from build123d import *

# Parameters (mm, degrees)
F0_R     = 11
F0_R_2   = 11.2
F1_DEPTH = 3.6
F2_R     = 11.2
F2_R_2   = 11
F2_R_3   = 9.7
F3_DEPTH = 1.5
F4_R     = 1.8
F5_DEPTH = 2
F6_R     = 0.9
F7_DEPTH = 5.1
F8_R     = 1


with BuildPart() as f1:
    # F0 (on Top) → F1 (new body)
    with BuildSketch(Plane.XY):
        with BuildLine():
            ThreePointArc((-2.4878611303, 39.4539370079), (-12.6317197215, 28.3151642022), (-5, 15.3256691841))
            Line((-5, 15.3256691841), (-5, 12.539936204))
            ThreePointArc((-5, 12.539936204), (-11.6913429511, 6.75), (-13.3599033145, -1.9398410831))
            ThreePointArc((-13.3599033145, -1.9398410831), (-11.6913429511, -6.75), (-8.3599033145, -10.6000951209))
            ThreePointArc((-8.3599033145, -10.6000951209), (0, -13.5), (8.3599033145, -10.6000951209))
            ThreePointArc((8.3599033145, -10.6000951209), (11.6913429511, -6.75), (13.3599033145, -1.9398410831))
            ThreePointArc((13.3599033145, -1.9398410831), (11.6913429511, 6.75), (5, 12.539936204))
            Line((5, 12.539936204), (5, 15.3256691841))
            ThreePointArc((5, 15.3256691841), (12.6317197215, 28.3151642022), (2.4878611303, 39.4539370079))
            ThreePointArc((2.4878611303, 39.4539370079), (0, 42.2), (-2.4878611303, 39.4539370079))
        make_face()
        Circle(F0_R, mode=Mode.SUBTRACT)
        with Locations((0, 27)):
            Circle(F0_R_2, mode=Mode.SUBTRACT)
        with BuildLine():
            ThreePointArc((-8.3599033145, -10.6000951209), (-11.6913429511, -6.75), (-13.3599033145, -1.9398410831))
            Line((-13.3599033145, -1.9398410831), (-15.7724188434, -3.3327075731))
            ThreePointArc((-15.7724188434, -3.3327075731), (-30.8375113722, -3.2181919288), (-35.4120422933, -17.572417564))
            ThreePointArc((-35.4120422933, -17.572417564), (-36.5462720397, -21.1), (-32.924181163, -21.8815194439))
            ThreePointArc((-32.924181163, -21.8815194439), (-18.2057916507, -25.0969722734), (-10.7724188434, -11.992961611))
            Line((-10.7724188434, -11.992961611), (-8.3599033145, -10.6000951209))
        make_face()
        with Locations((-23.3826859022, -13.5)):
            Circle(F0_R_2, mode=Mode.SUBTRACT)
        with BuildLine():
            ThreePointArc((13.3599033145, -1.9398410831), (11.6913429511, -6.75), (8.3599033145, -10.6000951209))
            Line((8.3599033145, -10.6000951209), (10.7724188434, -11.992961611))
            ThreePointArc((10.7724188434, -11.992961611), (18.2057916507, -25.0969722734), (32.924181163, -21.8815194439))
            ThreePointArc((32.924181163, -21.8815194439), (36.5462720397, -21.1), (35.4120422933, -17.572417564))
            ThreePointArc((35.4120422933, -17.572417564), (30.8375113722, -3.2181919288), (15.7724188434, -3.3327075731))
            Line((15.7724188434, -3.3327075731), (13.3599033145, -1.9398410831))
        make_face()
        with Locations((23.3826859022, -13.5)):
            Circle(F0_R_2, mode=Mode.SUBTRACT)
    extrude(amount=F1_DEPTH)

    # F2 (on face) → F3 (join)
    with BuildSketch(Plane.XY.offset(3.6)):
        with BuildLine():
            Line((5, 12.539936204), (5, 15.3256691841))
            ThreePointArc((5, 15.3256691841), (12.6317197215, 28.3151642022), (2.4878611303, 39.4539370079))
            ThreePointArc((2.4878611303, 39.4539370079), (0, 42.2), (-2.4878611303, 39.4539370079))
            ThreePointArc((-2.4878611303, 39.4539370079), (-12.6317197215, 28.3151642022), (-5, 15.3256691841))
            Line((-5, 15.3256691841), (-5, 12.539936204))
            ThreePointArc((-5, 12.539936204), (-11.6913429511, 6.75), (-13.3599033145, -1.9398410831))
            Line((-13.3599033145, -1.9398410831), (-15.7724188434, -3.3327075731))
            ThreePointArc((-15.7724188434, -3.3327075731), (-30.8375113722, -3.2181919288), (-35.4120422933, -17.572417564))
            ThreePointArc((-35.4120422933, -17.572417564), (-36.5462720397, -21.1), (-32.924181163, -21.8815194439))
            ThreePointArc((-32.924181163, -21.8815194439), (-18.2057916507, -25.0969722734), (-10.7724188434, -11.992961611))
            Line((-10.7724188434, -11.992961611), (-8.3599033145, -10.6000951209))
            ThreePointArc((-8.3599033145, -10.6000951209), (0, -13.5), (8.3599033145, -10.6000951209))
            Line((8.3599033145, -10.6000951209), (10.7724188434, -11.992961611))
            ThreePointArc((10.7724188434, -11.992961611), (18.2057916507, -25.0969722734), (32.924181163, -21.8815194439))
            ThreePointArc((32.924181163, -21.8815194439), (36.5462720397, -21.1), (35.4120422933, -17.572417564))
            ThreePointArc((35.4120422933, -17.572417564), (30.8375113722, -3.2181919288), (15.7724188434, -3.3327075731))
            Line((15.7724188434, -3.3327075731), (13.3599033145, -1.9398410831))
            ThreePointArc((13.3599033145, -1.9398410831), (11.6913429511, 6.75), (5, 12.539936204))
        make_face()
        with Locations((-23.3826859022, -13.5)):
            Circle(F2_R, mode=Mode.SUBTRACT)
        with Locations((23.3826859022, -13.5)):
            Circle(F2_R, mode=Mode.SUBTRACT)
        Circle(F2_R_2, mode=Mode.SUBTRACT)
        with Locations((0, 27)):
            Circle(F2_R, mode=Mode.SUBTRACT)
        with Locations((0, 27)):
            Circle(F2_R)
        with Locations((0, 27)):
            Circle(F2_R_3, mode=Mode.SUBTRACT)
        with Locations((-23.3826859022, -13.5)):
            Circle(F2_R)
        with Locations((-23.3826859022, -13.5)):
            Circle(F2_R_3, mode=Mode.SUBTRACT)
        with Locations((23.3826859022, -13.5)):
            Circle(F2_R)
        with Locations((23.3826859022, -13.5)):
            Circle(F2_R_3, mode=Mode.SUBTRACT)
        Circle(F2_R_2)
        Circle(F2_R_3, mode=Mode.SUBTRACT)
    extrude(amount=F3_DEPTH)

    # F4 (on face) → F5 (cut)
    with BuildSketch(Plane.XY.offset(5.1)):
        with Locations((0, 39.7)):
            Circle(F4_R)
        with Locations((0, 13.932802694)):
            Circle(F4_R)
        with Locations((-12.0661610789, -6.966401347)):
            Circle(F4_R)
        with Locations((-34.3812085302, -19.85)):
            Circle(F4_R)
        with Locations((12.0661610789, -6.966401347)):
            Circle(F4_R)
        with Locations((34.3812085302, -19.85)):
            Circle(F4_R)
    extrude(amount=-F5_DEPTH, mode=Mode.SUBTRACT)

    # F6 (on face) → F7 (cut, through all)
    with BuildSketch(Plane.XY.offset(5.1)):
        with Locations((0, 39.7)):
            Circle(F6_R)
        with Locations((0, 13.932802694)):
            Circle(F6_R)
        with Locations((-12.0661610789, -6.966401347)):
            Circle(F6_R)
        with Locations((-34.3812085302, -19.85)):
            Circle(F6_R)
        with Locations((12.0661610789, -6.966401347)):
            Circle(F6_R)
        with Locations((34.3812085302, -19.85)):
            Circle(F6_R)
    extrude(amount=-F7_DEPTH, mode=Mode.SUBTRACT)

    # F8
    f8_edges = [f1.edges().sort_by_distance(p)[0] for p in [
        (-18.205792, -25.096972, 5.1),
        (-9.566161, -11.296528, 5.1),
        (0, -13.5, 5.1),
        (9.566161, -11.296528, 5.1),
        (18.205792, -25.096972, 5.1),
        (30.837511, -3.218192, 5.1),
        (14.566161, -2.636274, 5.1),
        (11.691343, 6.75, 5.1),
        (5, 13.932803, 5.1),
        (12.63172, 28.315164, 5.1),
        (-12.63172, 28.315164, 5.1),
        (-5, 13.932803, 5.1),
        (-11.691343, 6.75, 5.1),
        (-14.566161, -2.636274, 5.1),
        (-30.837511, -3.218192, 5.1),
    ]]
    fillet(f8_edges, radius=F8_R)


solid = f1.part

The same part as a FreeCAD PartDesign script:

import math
import FreeCAD as App
import Part
import Sketcher

V = App.Vector
Q = App.Units.Quantity


def edges_at(feature, points):
    """Names of the edges that pass closest to the given points."""
    edges = feature.Shape.Edges
    near = lambda p: min(range(len(edges)), key=lambda i: edges[i].distToShape(Part.Vertex(*p))[0])
    return sorted({f"Edge{near(p) + 1}" for p in points})

doc = App.newDocument("Part")
body = doc.addObject("PartDesign::Body", "Body")

sketch1 = body.newObject("Sketcher::SketchObject", "Sketch")
sketch1.AttachmentSupport = (doc.getObject("XY_Plane"), [""])
sketch1.MapMode = "FlatFace"
sketch1.addGeometry(Part.ArcOfCircle(Part.Circle(V(0, 27, 0), V(0, 0, 1), 12.7), math.radians(101.296987), math.radians(246.81503)), False)
sketch1.addGeometry(Part.LineSegment(V(-5, 15.325669, 0), V(-5, 12.539936, 0)), False)
sketch1.addGeometry(Part.ArcOfCircle(Part.Circle(V(0, 0, 0), V(0, 0, 1), 13.5), math.radians(111.738461), math.radians(188.261539)), False)
sketch1.addGeometry(Part.LineSegment(V(-13.359903, -1.939841, 0), V(-15.772419, -3.332708, 0)), False)
sketch1.addGeometry(Part.ArcOfCircle(Part.Circle(V(-23.382686, -13.5, 0), V(0, 0, 1), 12.7), math.radians(53.18497), math.radians(198.703013)), False)
sketch1.addGeometry(Part.ArcOfCircle(Part.Circle(V(-34.381209, -19.85, 0), V(0, 0, 1), 2.5), math.radians(114.351506), math.radians(305.648494)), False)
sketch1.addGeometry(Part.ArcOfCircle(Part.Circle(V(-23.382686, -13.5, 0), V(0, 0, 1), 12.7), math.radians(-138.703013), math.radians(6.81503)), False)
sketch1.addGeometry(Part.LineSegment(V(-10.772419, -11.992962, 0), V(-8.359903, -10.600095, 0)), False)
sketch1.addGeometry(Part.ArcOfCircle(Part.Circle(V(0, 0, 0), V(0, 0, 1), 13.5), math.radians(-128.261539), math.radians(-51.738461)), False)
sketch1.addGeometry(Part.LineSegment(V(8.359903, -10.600095, 0), V(10.772419, -11.992962, 0)), False)
sketch1.addGeometry(Part.ArcOfCircle(Part.Circle(V(23.382686, -13.5, 0), V(0, 0, 1), 12.7), math.radians(173.18497), math.radians(318.703013)), False)
sketch1.addGeometry(Part.ArcOfCircle(Part.Circle(V(34.381209, -19.85, 0), V(0, 0, 1), 2.5), math.radians(-125.648494), math.radians(65.648494)), False)
sketch1.addGeometry(Part.ArcOfCircle(Part.Circle(V(23.382686, -13.5, 0), V(0, 0, 1), 12.7), math.radians(-18.703013), math.radians(126.81503)), False)
sketch1.addGeometry(Part.LineSegment(V(15.772419, -3.332708, 0), V(13.359903, -1.939841, 0)), False)
sketch1.addGeometry(Part.ArcOfCircle(Part.Circle(V(0, 0, 0), V(0, 0, 1), 13.5), math.radians(-8.261539), math.radians(68.261539)), False)
sketch1.addGeometry(Part.LineSegment(V(5, 12.539936, 0), V(5, 15.325669, 0)), False)
sketch1.addGeometry(Part.ArcOfCircle(Part.Circle(V(0, 27, 0), V(0, 0, 1), 12.7), math.radians(-66.81503), math.radians(78.703013)), False)
sketch1.addGeometry(Part.ArcOfCircle(Part.Circle(V(0, 39.7, 0), V(0, 0, 1), 2.5), math.radians(-5.648494), math.radians(185.648494)), False)
sketch1.addGeometry(Part.Circle(V(-23.382686, -13.5, 0), V(0, 0, 1), 11.2), False)
sketch1.addGeometry(Part.Circle(V(23.382686, -13.5, 0), V(0, 0, 1), 11.2), False)
sketch1.addGeometry(Part.Circle(V(0, 0, 0), V(0, 0, 1), 11), False)
sketch1.addGeometry(Part.Circle(V(0, 27, 0), V(0, 0, 1), 11.2), False)
sketch1.addConstraint(Sketcher.Constraint("Coincident", 0, 2, 1, 1))
sketch1.addConstraint(Sketcher.Constraint("Coincident", 1, 2, 2, 1))
sketch1.addConstraint(Sketcher.Constraint("Coincident", 2, 2, 3, 1))
sketch1.addConstraint(Sketcher.Constraint("Coincident", 3, 2, 4, 1))
sketch1.addConstraint(Sketcher.Constraint("Coincident", 4, 2, 5, 1))
sketch1.addConstraint(Sketcher.Constraint("Coincident", 5, 2, 6, 1))
sketch1.addConstraint(Sketcher.Constraint("Coincident", 6, 2, 7, 1))
sketch1.addConstraint(Sketcher.Constraint("Coincident", 7, 2, 8, 1))
sketch1.addConstraint(Sketcher.Constraint("Coincident", 8, 2, 9, 1))
sketch1.addConstraint(Sketcher.Constraint("Coincident", 9, 2, 10, 1))
sketch1.addConstraint(Sketcher.Constraint("Coincident", 10, 2, 11, 1))
sketch1.addConstraint(Sketcher.Constraint("Coincident", 11, 2, 12, 1))
sketch1.addConstraint(Sketcher.Constraint("Coincident", 12, 2, 13, 1))
sketch1.addConstraint(Sketcher.Constraint("Coincident", 13, 2, 14, 1))
sketch1.addConstraint(Sketcher.Constraint("Coincident", 14, 2, 15, 1))
sketch1.addConstraint(Sketcher.Constraint("Coincident", 15, 2, 16, 1))
sketch1.addConstraint(Sketcher.Constraint("Coincident", 16, 2, 17, 1))
sketch1.addConstraint(Sketcher.Constraint("Coincident", 17, 2, 0, 1))
sketch1.addConstraint(Sketcher.Constraint("Vertical", 1))
sketch1.addConstraint(Sketcher.Constraint("Vertical", 15))
sketch1.addConstraint(Sketcher.Constraint("Coincident", 2, 3, -1, 1))
sketch1.addConstraint(Sketcher.Constraint("Coincident", 8, 3, -1, 1))
sketch1.addConstraint(Sketcher.Constraint("Coincident", 14, 3, -1, 1))
sketch1.addConstraint(Sketcher.Constraint("Coincident", 20, 3, -1, 1))
sketch1.addConstraint(Sketcher.Constraint("Coincident", 6, 3, 4, 3))
sketch1.addConstraint(Sketcher.Constraint("Coincident", 12, 3, 10, 3))
sketch1.addConstraint(Sketcher.Constraint("Coincident", 16, 3, 0, 3))
sketch1.addConstraint(Sketcher.Constraint("Coincident", 18, 3, 4, 3))
sketch1.addConstraint(Sketcher.Constraint("Coincident", 19, 3, 10, 3))
sketch1.addConstraint(Sketcher.Constraint("Coincident", 21, 3, 0, 3))
sketch1.addConstraint(Sketcher.Constraint("Equal", 0, 4))
sketch1.addConstraint(Sketcher.Constraint("Equal", 4, 6))
sketch1.addConstraint(Sketcher.Constraint("Equal", 2, 8))
sketch1.addConstraint(Sketcher.Constraint("Equal", 6, 10))
sketch1.addConstraint(Sketcher.Constraint("Equal", 5, 11))
sketch1.addConstraint(Sketcher.Constraint("Equal", 10, 12))
sketch1.addConstraint(Sketcher.Constraint("Equal", 8, 14))
sketch1.addConstraint(Sketcher.Constraint("Equal", 12, 16))
sketch1.addConstraint(Sketcher.Constraint("Equal", 11, 17))
sketch1.addConstraint(Sketcher.Constraint("Equal", 18, 19))
sketch1.addConstraint(Sketcher.Constraint("Equal", 19, 21))
sketch1.addConstraint(Sketcher.Constraint("Symmetric", 4, 3, 10, 3, -2))
sketch1.addConstraint(Sketcher.Constraint("Symmetric", 5, 3, 11, 3, -2))
sketch1.addConstraint(Sketcher.Constraint("Symmetric", 0, 2, 15, 2, -2))
sketch1.addConstraint(Sketcher.Constraint("PointOnObject", 17, 3, -2))
sketch1.addConstraint(Sketcher.Constraint("Parallel", 3, 7))
sketch1.addConstraint(Sketcher.Constraint("Parallel", 9, 13))
sketch1.addConstraint(Sketcher.Constraint("Horizontal", 7, 2, 8, 2))
sketch1.addConstraint(Sketcher.Constraint("Horizontal", 6, 2, 9, 2))
sketch1.addConstraint(Sketcher.Constraint("Horizontal", 3, 2, 12, 2))
sketch1.addConstraint(Sketcher.Constraint("Equal", 3, 7))
sketch1.addConstraint(Sketcher.Constraint("Diameter", 20, Q("22 mm")))
sketch1.addConstraint(Sketcher.Constraint("Diameter", 18, Q("22.4 mm")))
sketch1.addConstraint(Sketcher.Constraint("Radius", 0, Q("12.7 mm")))
sketch1.addConstraint(Sketcher.Constraint("Radius", 2, Q("13.5 mm")))
sketch1.addConstraint(Sketcher.Constraint("Radius", 5, Q("2.5 mm")))
sketch1.addConstraint(Sketcher.Constraint("Angle", 3, Q("-150 deg")))
sketch1.addConstraint(Sketcher.Constraint("DistanceY", -1, 1, 0, 3, Q("27 mm")))
sketch1.addConstraint(Sketcher.Constraint("DistanceX", 0, 2, -1, 1, Q("5 mm")))
sketch1.addConstraint(Sketcher.Constraint("DistanceX", 3, 2, 6, 2, Q("5 mm")))
sketch1.addConstraint(Sketcher.Constraint("DistanceY", 4, 3, -1, 1, Q("13.5 mm")))
sketch1.addConstraint(Sketcher.Constraint("DistanceY", -1, 1, 17, 3, Q("39.7 mm")))
sketch1.addConstraint(Sketcher.Constraint("DistanceY", 5, 3, -1, 1, Q("19.85 mm")))
sketch1.addConstraint(Sketcher.Constraint("DistanceY", 5, 2, 4, 2, Q("4.309102 mm")))
sketch1.addConstraint(Sketcher.Constraint("DistanceX", 5, 3, -1, 1, Q("34.381209 mm")))
pad1 = body.newObject("PartDesign::Pad", "Pad")
pad1.Profile = sketch1
pad1.Length = 3.6

sketch2 = body.newObject("Sketcher::SketchObject", "Sketch001")
sketch2.AttachmentSupport = (doc.getObject("XY_Plane"), [""])
sketch2.MapMode = "FlatFace"
sketch2.AttachmentOffset = App.Placement(V(0, 0, 3.6), App.Rotation())
sketch2.addGeometry(Part.LineSegment(V(5, 12.539936, 0), V(5, 15.325669, 0)), False)
sketch2.addGeometry(Part.ArcOfCircle(Part.Circle(V(0, 27, 0), V(0, 0, 1), 12.7), math.radians(-66.81503), math.radians(78.703013)), False)
sketch2.addGeometry(Part.ArcOfCircle(Part.Circle(V(0, 39.7, 0), V(0, 0, 1), 2.5), math.radians(-5.648494), math.radians(185.648494)), False)
sketch2.addGeometry(Part.ArcOfCircle(Part.Circle(V(0, 27, 0), V(0, 0, 1), 12.7), math.radians(101.296987), math.radians(246.81503)), False)
sketch2.addGeometry(Part.LineSegment(V(-5, 15.325669, 0), V(-5, 12.539936, 0)), False)
sketch2.addGeometry(Part.ArcOfCircle(Part.Circle(V(0, 0, 0), V(0, 0, 1), 13.5), math.radians(111.738461), math.radians(188.261539)), False)
sketch2.addGeometry(Part.LineSegment(V(-13.359903, -1.939841, 0), V(-15.772419, -3.332708, 0)), False)
sketch2.addGeometry(Part.ArcOfCircle(Part.Circle(V(-23.382686, -13.5, 0), V(0, 0, 1), 12.7), math.radians(53.18497), math.radians(198.703013)), False)
sketch2.addGeometry(Part.ArcOfCircle(Part.Circle(V(-34.381209, -19.85, 0), V(0, 0, 1), 2.5), math.radians(114.351506), math.radians(305.648494)), False)
sketch2.addGeometry(Part.ArcOfCircle(Part.Circle(V(-23.382686, -13.5, 0), V(0, 0, 1), 12.7), math.radians(-138.703013), math.radians(6.81503)), False)
sketch2.addGeometry(Part.LineSegment(V(-10.772419, -11.992962, 0), V(-8.359903, -10.600095, 0)), False)
sketch2.addGeometry(Part.ArcOfCircle(Part.Circle(V(0, 0, 0), V(0, 0, 1), 13.5), math.radians(-128.261539), math.radians(-51.738461)), False)
sketch2.addGeometry(Part.LineSegment(V(8.359903, -10.600095, 0), V(10.772419, -11.992962, 0)), False)
sketch2.addGeometry(Part.ArcOfCircle(Part.Circle(V(23.382686, -13.5, 0), V(0, 0, 1), 12.7), math.radians(173.18497), math.radians(318.703013)), False)
sketch2.addGeometry(Part.ArcOfCircle(Part.Circle(V(34.381209, -19.85, 0), V(0, 0, 1), 2.5), math.radians(-125.648494), math.radians(65.648494)), False)
sketch2.addGeometry(Part.ArcOfCircle(Part.Circle(V(23.382686, -13.5, 0), V(0, 0, 1), 12.7), math.radians(-18.703013), math.radians(126.81503)), False)
sketch2.addGeometry(Part.LineSegment(V(15.772419, -3.332708, 0), V(13.359903, -1.939841, 0)), False)
sketch2.addGeometry(Part.ArcOfCircle(Part.Circle(V(0, 0, 0), V(0, 0, 1), 13.5), math.radians(-8.261539), math.radians(68.261539)), False)
sketch2.addGeometry(Part.Circle(V(-23.382686, -13.5, 0), V(0, 0, 1), 9.7), False)
sketch2.addGeometry(Part.Circle(V(23.382686, -13.5, 0), V(0, 0, 1), 9.7), False)
sketch2.addGeometry(Part.Circle(V(0, 0, 0), V(0, 0, 1), 9.7), False)
sketch2.addGeometry(Part.Circle(V(0, 27, 0), V(0, 0, 1), 9.7), False)
sketch2.addConstraint(Sketcher.Constraint("Coincident", 0, 2, 1, 1))
sketch2.addConstraint(Sketcher.Constraint("Coincident", 1, 2, 2, 1))
sketch2.addConstraint(Sketcher.Constraint("Coincident", 2, 2, 3, 1))
sketch2.addConstraint(Sketcher.Constraint("Coincident", 3, 2, 4, 1))
sketch2.addConstraint(Sketcher.Constraint("Coincident", 4, 2, 5, 1))
sketch2.addConstraint(Sketcher.Constraint("Coincident", 5, 2, 6, 1))
sketch2.addConstraint(Sketcher.Constraint("Coincident", 6, 2, 7, 1))
sketch2.addConstraint(Sketcher.Constraint("Coincident", 7, 2, 8, 1))
sketch2.addConstraint(Sketcher.Constraint("Coincident", 8, 2, 9, 1))
sketch2.addConstraint(Sketcher.Constraint("Coincident", 9, 2, 10, 1))
sketch2.addConstraint(Sketcher.Constraint("Coincident", 10, 2, 11, 1))
sketch2.addConstraint(Sketcher.Constraint("Coincident", 11, 2, 12, 1))
sketch2.addConstraint(Sketcher.Constraint("Coincident", 12, 2, 13, 1))
sketch2.addConstraint(Sketcher.Constraint("Coincident", 13, 2, 14, 1))
sketch2.addConstraint(Sketcher.Constraint("Coincident", 14, 2, 15, 1))
sketch2.addConstraint(Sketcher.Constraint("Coincident", 15, 2, 16, 1))
sketch2.addConstraint(Sketcher.Constraint("Coincident", 16, 2, 17, 1))
sketch2.addConstraint(Sketcher.Constraint("Coincident", 17, 2, 0, 1))
sketch2.addConstraint(Sketcher.Constraint("Vertical", 0))
sketch2.addConstraint(Sketcher.Constraint("Vertical", 4))
sketch2.addConstraint(Sketcher.Constraint("Coincident", 5, 3, -1, 1))
sketch2.addConstraint(Sketcher.Constraint("Coincident", 11, 3, -1, 1))
sketch2.addConstraint(Sketcher.Constraint("Coincident", 17, 3, -1, 1))
sketch2.addConstraint(Sketcher.Constraint("Coincident", 20, 3, -1, 1))
sketch2.addConstraint(Sketcher.Constraint("Coincident", 3, 3, 1, 3))
sketch2.addConstraint(Sketcher.Constraint("Coincident", 9, 3, 7, 3))
sketch2.addConstraint(Sketcher.Constraint("Coincident", 15, 3, 13, 3))
sketch2.addConstraint(Sketcher.Constraint("Coincident", 18, 3, 7, 3))
sketch2.addConstraint(Sketcher.Constraint("Coincident", 19, 3, 13, 3))
sketch2.addConstraint(Sketcher.Constraint("Coincident", 21, 3, 1, 3))
sketch2.addConstraint(Sketcher.Constraint("Equal", 1, 3))
sketch2.addConstraint(Sketcher.Constraint("Equal", 3, 7))
sketch2.addConstraint(Sketcher.Constraint("Equal", 2, 8))
sketch2.addConstraint(Sketcher.Constraint("Equal", 7, 9))
sketch2.addConstraint(Sketcher.Constraint("Equal", 5, 11))
sketch2.addConstraint(Sketcher.Constraint("Equal", 9, 13))
sketch2.addConstraint(Sketcher.Constraint("Equal", 8, 14))
sketch2.addConstraint(Sketcher.Constraint("Equal", 13, 15))
sketch2.addConstraint(Sketcher.Constraint("Equal", 11, 17))
sketch2.addConstraint(Sketcher.Constraint("Equal", 18, 19))
sketch2.addConstraint(Sketcher.Constraint("Equal", 19, 20))
sketch2.addConstraint(Sketcher.Constraint("Equal", 20, 21))
sketch2.addConstraint(Sketcher.Constraint("Symmetric", 7, 3, 13, 3, -2))
sketch2.addConstraint(Sketcher.Constraint("Symmetric", 8, 3, 14, 3, -2))
sketch2.addConstraint(Sketcher.Constraint("Symmetric", 1, 2, 2, 2, -2))
sketch2.addConstraint(Sketcher.Constraint("Parallel", 6, 10))
sketch2.addConstraint(Sketcher.Constraint("Parallel", 12, 16))
sketch2.addConstraint(Sketcher.Constraint("Horizontal", 0, 2, 3, 2))
sketch2.addConstraint(Sketcher.Constraint("Horizontal", 10, 2, 11, 2))
sketch2.addConstraint(Sketcher.Constraint("Horizontal", 9, 2, 12, 2))
sketch2.addConstraint(Sketcher.Constraint("Horizontal", 6, 2, 15, 2))
sketch2.addConstraint(Sketcher.Constraint("Equal", 6, 10))
sketch2.addConstraint(Sketcher.Constraint("Diameter", 18, Q("19.4 mm")))
sketch2.addConstraint(Sketcher.Constraint("Radius", 1, Q("12.7 mm")))
sketch2.addConstraint(Sketcher.Constraint("Radius", 2, Q("2.5 mm")))
sketch2.addConstraint(Sketcher.Constraint("Radius", 5, Q("13.5 mm")))
sketch2.addConstraint(Sketcher.Constraint("Angle", 6, Q("-150 deg")))
sketch2.addConstraint(Sketcher.Constraint("DistanceY", -1, 1, 1, 3, Q("27 mm")))
sketch2.addConstraint(Sketcher.Constraint("DistanceX", -1, 1, 0, 2, Q("5 mm")))
sketch2.addConstraint(Sketcher.Constraint("DistanceX", 6, 2, 9, 2, Q("5 mm")))
sketch2.addConstraint(Sketcher.Constraint("DistanceY", -1, 1, 2, 3, Q("39.7 mm")))
sketch2.addConstraint(Sketcher.Constraint("DistanceY", 7, 3, -1, 1, Q("13.5 mm")))
sketch2.addConstraint(Sketcher.Constraint("DistanceY", 8, 3, -1, 1, Q("19.85 mm")))
sketch2.addConstraint(Sketcher.Constraint("DistanceY", 8, 2, 7, 2, Q("4.309102 mm")))
sketch2.addConstraint(Sketcher.Constraint("DistanceX", 8, 3, -1, 1, Q("34.381209 mm")))
pad2 = body.newObject("PartDesign::Pad", "Pad001")
pad2.Profile = sketch2
pad2.Length = 1.5

sketch3 = body.newObject("Sketcher::SketchObject", "Sketch002")
sketch3.AttachmentSupport = (doc.getObject("XY_Plane"), [""])
sketch3.MapMode = "FlatFace"
sketch3.AttachmentOffset = App.Placement(V(0, 0, 5.1), App.Rotation())
sketch3.addGeometry(Part.Circle(V(0, 39.7, 0), V(0, 0, 1), 1.8), False)
sketch3.addGeometry(Part.Circle(V(0, 13.932803, 0), V(0, 0, 1), 1.8), False)
sketch3.addGeometry(Part.Circle(V(-12.066161, -6.966401, 0), V(0, 0, 1), 1.8), False)
sketch3.addGeometry(Part.Circle(V(-34.381209, -19.85, 0), V(0, 0, 1), 1.8), False)
sketch3.addGeometry(Part.Circle(V(12.066161, -6.966401, 0), V(0, 0, 1), 1.8), False)
sketch3.addGeometry(Part.Circle(V(34.381209, -19.85, 0), V(0, 0, 1), 1.8), False)
sketch3.addConstraint(Sketcher.Constraint("Equal", 0, 1))
sketch3.addConstraint(Sketcher.Constraint("Equal", 1, 2))
sketch3.addConstraint(Sketcher.Constraint("Equal", 2, 3))
sketch3.addConstraint(Sketcher.Constraint("Equal", 3, 4))
sketch3.addConstraint(Sketcher.Constraint("Equal", 4, 5))
sketch3.addConstraint(Sketcher.Constraint("Symmetric", 2, 3, 4, 3, -2))
sketch3.addConstraint(Sketcher.Constraint("Symmetric", 3, 3, 5, 3, -2))
sketch3.addConstraint(Sketcher.Constraint("PointOnObject", 0, 3, -2))
sketch3.addConstraint(Sketcher.Constraint("PointOnObject", 1, 3, -2))
sketch3.addConstraint(Sketcher.Constraint("Diameter", 0, Q("3.6 mm")))
sketch3.addConstraint(Sketcher.Constraint("DistanceY", -1, 1, 0, 3, Q("39.7 mm")))
sketch3.addConstraint(Sketcher.Constraint("DistanceY", 3, 3, -1, 1, Q("19.85 mm")))
sketch3.addConstraint(Sketcher.Constraint("DistanceY", 2, 3, -1, 1, Q("6.966401 mm")))
sketch3.addConstraint(Sketcher.Constraint("DistanceX", 2, 3, -1, 1, Q("12.066161 mm")))
sketch3.addConstraint(Sketcher.Constraint("DistanceX", 3, 3, -1, 1, Q("34.381209 mm")))
sketch3.addConstraint(Sketcher.Constraint("DistanceY", -1, 1, 1, 3, Q("13.932803 mm")))
pocket1 = body.newObject("PartDesign::Pocket", "Pocket")
pocket1.Profile = sketch3
pocket1.Length = 2

sketch4 = body.newObject("Sketcher::SketchObject", "Sketch003")
sketch4.AttachmentSupport = (doc.getObject("XY_Plane"), [""])
sketch4.MapMode = "FlatFace"
sketch4.AttachmentOffset = App.Placement(V(0, 0, 5.1), App.Rotation())
sketch4.addGeometry(Part.Circle(V(0, 39.7, 0), V(0, 0, 1), 0.9), False)
sketch4.addGeometry(Part.Circle(V(0, 13.932803, 0), V(0, 0, 1), 0.9), False)
sketch4.addGeometry(Part.Circle(V(-12.066161, -6.966401, 0), V(0, 0, 1), 0.9), False)
sketch4.addGeometry(Part.Circle(V(-34.381209, -19.85, 0), V(0, 0, 1), 0.9), False)
sketch4.addGeometry(Part.Circle(V(12.066161, -6.966401, 0), V(0, 0, 1), 0.9), False)
sketch4.addGeometry(Part.Circle(V(34.381209, -19.85, 0), V(0, 0, 1), 0.9), False)
sketch4.addConstraint(Sketcher.Constraint("Equal", 0, 1))
sketch4.addConstraint(Sketcher.Constraint("Equal", 1, 2))
sketch4.addConstraint(Sketcher.Constraint("Equal", 2, 3))
sketch4.addConstraint(Sketcher.Constraint("Equal", 3, 4))
sketch4.addConstraint(Sketcher.Constraint("Equal", 4, 5))
sketch4.addConstraint(Sketcher.Constraint("Symmetric", 2, 3, 4, 3, -2))
sketch4.addConstraint(Sketcher.Constraint("Symmetric", 3, 3, 5, 3, -2))
sketch4.addConstraint(Sketcher.Constraint("PointOnObject", 0, 3, -2))
sketch4.addConstraint(Sketcher.Constraint("PointOnObject", 1, 3, -2))
sketch4.addConstraint(Sketcher.Constraint("Diameter", 0, Q("1.8 mm")))
sketch4.addConstraint(Sketcher.Constraint("DistanceY", -1, 1, 0, 3, Q("39.7 mm")))
sketch4.addConstraint(Sketcher.Constraint("DistanceY", 3, 3, -1, 1, Q("19.85 mm")))
sketch4.addConstraint(Sketcher.Constraint("DistanceY", 2, 3, -1, 1, Q("6.966401 mm")))
sketch4.addConstraint(Sketcher.Constraint("DistanceX", 2, 3, -1, 1, Q("12.066161 mm")))
sketch4.addConstraint(Sketcher.Constraint("DistanceX", 3, 3, -1, 1, Q("34.381209 mm")))
sketch4.addConstraint(Sketcher.Constraint("DistanceY", -1, 1, 1, 3, Q("13.932803 mm")))
pocket2 = body.newObject("PartDesign::Pocket", "Pocket001")
pocket2.Profile = sketch4
pocket2.Type = "ThroughAll"
doc.recompute()

fillet = body.newObject("PartDesign::Fillet", "Fillet")
fillet.Base = (pocket2, edges_at(pocket2, [
    (-18.206, -25.097, 5.1),
    (-9.566, -11.297, 5.1),
    (0, -13.5, 5.1),
    (9.566, -11.297, 5.1),
    (18.206, -25.097, 5.1),
    (30.838, -3.218, 5.1),
    (14.566, -2.636, 5.1),
    (11.691, 6.75, 5.1),
    (5, 13.933, 5.1),
    (12.632, 28.315, 5.1),
    (-12.632, 28.315, 5.1),
    (-5, 13.933, 5.1),
    (-11.691, 6.75, 5.1),
    (-14.566, -2.636, 5.1),
    (-30.838, -3.218, 5.1),
]))
fillet.Radius = 1

doc.recompute()
